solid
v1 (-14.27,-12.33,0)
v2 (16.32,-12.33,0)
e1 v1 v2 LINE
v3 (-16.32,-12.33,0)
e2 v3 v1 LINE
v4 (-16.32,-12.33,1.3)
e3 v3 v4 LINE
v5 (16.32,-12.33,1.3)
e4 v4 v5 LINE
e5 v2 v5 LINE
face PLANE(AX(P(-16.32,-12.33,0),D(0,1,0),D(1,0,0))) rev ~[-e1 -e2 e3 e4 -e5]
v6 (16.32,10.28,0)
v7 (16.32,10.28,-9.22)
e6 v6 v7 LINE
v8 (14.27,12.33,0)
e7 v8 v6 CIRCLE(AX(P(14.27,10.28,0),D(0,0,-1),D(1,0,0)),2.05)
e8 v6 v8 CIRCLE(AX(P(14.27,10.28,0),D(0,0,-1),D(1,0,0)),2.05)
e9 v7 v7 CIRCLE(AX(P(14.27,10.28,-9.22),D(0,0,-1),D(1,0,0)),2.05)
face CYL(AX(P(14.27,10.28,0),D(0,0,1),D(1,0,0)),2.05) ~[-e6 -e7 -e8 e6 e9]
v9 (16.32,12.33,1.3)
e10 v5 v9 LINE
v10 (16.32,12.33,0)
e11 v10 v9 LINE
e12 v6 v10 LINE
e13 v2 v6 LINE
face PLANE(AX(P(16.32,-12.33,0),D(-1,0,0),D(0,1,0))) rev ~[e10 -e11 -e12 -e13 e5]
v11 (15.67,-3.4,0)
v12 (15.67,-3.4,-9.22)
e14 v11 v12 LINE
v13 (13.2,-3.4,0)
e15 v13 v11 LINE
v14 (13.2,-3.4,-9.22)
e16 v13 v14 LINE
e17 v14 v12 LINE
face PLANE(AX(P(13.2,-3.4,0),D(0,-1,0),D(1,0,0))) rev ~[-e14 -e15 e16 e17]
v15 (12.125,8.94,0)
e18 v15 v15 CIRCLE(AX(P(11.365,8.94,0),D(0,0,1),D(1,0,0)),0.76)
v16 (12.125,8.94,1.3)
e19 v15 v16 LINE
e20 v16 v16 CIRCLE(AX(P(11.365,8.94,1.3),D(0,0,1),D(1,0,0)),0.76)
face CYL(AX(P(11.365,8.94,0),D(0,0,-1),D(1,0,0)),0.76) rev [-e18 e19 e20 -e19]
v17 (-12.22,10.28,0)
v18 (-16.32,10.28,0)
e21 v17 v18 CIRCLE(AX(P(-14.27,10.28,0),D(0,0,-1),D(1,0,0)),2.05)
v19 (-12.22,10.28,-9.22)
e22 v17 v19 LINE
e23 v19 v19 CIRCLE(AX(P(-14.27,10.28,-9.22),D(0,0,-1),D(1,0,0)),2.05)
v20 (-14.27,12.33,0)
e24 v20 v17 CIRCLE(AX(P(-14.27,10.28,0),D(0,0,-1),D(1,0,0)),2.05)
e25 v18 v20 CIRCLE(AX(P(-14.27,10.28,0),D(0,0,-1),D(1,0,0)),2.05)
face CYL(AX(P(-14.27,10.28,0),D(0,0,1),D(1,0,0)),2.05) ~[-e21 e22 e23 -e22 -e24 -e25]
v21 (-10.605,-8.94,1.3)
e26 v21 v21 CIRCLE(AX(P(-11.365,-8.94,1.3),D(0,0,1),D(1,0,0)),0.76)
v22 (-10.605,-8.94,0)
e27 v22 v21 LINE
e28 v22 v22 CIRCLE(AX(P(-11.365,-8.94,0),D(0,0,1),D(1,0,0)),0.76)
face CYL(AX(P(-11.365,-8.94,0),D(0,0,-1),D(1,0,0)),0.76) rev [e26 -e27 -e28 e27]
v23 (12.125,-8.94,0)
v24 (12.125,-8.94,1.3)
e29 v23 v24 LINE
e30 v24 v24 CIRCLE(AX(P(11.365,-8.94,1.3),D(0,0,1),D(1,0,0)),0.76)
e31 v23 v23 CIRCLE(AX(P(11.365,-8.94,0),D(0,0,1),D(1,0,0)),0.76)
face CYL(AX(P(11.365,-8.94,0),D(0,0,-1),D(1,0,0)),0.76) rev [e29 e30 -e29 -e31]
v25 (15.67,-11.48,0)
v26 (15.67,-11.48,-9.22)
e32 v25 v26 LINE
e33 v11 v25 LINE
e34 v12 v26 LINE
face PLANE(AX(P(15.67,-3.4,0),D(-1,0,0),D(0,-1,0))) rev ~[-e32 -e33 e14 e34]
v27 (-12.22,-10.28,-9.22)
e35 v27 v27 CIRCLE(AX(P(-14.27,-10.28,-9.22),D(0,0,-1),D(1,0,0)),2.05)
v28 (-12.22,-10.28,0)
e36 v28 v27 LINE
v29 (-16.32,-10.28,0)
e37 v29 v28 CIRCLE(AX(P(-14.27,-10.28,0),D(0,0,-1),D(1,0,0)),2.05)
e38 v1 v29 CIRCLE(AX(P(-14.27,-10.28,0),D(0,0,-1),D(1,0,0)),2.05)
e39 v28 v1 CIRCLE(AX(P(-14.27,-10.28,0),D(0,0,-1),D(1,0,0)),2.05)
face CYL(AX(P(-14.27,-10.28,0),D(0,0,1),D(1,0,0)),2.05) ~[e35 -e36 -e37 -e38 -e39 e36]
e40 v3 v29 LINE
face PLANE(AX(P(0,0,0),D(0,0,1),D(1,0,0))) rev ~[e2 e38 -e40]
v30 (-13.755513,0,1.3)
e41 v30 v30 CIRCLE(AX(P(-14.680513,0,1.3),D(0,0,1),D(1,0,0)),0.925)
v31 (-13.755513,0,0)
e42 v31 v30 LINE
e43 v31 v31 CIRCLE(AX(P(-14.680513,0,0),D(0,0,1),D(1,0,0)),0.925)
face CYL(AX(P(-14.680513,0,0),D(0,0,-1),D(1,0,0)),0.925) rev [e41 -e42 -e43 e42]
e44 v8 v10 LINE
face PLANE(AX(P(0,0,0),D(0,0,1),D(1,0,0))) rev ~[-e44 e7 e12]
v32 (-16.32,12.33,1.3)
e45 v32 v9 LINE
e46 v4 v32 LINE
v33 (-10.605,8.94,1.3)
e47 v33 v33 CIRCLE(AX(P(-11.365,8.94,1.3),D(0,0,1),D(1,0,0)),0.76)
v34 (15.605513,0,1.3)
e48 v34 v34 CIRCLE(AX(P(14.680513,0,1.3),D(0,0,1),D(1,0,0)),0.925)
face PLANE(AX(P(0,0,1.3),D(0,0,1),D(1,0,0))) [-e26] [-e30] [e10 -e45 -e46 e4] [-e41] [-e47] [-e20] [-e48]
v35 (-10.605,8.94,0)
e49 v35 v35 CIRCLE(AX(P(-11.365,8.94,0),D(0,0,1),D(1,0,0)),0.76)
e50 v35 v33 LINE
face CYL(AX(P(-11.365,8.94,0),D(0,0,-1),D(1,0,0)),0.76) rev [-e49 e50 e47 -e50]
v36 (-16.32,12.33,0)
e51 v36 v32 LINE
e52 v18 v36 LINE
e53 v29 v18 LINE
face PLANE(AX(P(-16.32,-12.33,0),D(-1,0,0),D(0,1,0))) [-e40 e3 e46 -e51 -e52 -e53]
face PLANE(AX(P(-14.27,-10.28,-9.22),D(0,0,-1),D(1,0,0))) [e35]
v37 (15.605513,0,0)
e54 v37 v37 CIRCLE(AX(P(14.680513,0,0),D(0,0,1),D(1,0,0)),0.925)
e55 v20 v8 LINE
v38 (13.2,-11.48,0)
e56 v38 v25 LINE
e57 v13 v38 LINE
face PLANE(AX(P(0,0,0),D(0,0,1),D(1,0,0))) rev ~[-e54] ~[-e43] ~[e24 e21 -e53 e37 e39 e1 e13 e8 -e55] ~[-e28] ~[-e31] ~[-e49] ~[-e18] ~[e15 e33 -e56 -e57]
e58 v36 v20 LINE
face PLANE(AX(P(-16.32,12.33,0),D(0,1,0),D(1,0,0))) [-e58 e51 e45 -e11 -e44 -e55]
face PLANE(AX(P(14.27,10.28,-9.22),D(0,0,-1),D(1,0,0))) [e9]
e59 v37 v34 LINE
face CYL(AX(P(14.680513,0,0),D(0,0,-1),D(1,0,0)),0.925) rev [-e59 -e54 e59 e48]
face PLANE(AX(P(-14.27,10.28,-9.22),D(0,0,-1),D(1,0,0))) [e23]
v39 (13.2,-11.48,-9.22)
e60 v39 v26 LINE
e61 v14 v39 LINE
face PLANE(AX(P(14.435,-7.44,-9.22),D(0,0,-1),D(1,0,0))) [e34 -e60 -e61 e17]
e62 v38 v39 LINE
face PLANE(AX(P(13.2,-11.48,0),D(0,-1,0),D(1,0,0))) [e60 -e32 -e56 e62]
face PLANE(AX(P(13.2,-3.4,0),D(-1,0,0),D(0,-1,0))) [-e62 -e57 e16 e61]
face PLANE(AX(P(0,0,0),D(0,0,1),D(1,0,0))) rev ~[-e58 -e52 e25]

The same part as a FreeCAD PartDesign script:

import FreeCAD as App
import Part
import Sketcher

V = App.Vector
Q = App.Units.Quantity


def add_polygon(sketch, points):
    """Adds a closed chain of lines whose ends are joined by coincident constraints."""
    first, n = sketch.GeometryCount, len(points)
    for a, b in zip(points, points[1:] + points[:1]):
        sketch.addGeometry(Part.LineSegment(App.Vector(*a, 0), App.Vector(*b, 0)), False)
    for i in range(n):
        sketch.addConstraint(Sketcher.Constraint("Coincident", first + i, 2, first + (i + 1) % n, 1))

doc = App.newDocument("Part")
body = doc.addObject("PartDesign::Body", "Body")

# Sketch on XY plane
sketch1 = doc.addObject("Sketcher::SketchObject", "Sketch")
body.addObject(sketch1)
sketch1.AttachmentSupport = (doc.XY_Plane, [""])
sketch1.MapMode = "FlatFace"
add_polygon(sketch1, [(-16.3, 12.3), (-16.3, -12.3), (16.3, -12.3), (16.3, 12.3)])  # lines 0-3
sketch1.addGeometry(Part.Circle(V(-11.4, -8.9, 0), V(0, 0, 1), 0.8), False)  # 4
sketch1.addGeometry(Part.Circle(V(11.4, -8.9, 0), V(0, 0, 1), 0.8), False)  # 5
sketch1.addGeometry(Part.Circle(V(-14.7, 0, 0), V(0, 0, 1), 0.9), False)  # 6
sketch1.addGeometry(Part.Circle(V(-11.4, 8.9, 0), V(0, 0, 1), 0.8), False)  # 7
sketch1.addGeometry(Part.Circle(V(14.7, 0, 0), V(0, 0, 1), 0.9), False)  # 8
sketch1.addGeometry(Part.Circle(V(11.4, 8.9, 0), V(0, 0, 1), 0.8), False)  # 9
sketch1.addConstraint(Sketcher.Constraint("Vertical", 0))
sketch1.addConstraint(Sketcher.Constraint("Horizontal", 1))
sketch1.addConstraint(Sketcher.Constraint("Vertical", 2))
sketch1.addConstraint(Sketcher.Constraint("Horizontal", 3))
sketch1.addConstraint(Sketcher.Constraint("Equal", 4, 5))
sketch1.addConstraint(Sketcher.Constraint("Equal", 5, 7))
sketch1.addConstraint(Sketcher.Constraint("Equal", 6, 8))
sketch1.addConstraint(Sketcher.Constraint("Equal", 7, 9))
sketch1.addConstraint(Sketcher.Constraint("Symmetric", 5, 3, 7, 3, -1, 1))
sketch1.addConstraint(Sketcher.Constraint("Symmetric", 6, 3, 8, 3, -1, 1))
sketch1.addConstraint(Sketcher.Constraint("Symmetric", 4, 3, 9, 3, -1, 1))
sketch1.addConstraint(Sketcher.Constraint("Symmetric", 0, 2, 2, 2, -1, 1))
sketch1.addConstraint(Sketcher.Constraint("Symmetric", 4, 3, 5, 3, -2))
sketch1.addConstraint(Sketcher.Constraint("PointOnObject", 6, 3, -1))
sketch1.addConstraint(Sketcher.Constraint("Diameter", 4, Q("1.52 mm")))
sketch1.addConstraint(Sketcher.Constraint("Diameter", 6, Q("1.85 mm")))
sketch1.addConstraint(Sketcher.Constraint("DistanceX", 1, 1, 1, 2, Q("32.64 mm")))
sketch1.addConstraint(Sketcher.Constraint("DistanceY", 0, 2, 0, 1, Q("24.66 mm")))
sketch1.addConstraint(Sketcher.Constraint("DistanceY", 4, 3, -1, 1, Q("8.94 mm")))
sketch1.addConstraint(Sketcher.Constraint("DistanceX", 4, 3, 5, 3, Q("22.73 mm")))
sketch1.addConstraint(Sketcher.Constraint("DistanceX", 6, 3, -1, 1, Q("14.680513 mm")))
pad1 = doc.addObject("PartDesign::Pad", "Pad")
body.addObject(pad1)
pad1.Profile = sketch1
pad1.Length = 1.3

# Sketch on XY plane
sketch2 = doc.addObject("Sketcher::SketchObject", "Sketch001")
body.addObject(sketch2)
sketch2.AttachmentSupport = (doc.XY_Plane, [""])
sketch2.MapMode = "FlatFace"
sketch2.addGeometry(Part.Circle(V(-14.3, -10.3, 0), V(0, 0, 1), 2), False)  # 0
sketch2.addGeometry(Part.Circle(V(-14.3, 10.3, 0), V(0, 0, 1), 2), False)  # 1
sketch2.addGeometry(Part.Circle(V(14.3, 10.3, 0), V(0, 0, 1), 2), False)  # 2
add_polygon(sketch2, [(13.2, -11.5), (13.2, -3.4), (15.7, -3.4), (15.7, -11.5)])  # lines 3-6
sketch2.addConstraint(Sketcher.Constraint("Vertical", 3))
sketch2.addConstraint(Sketcher.Constraint("Horizontal", 4))
sketch2.addConstraint(Sketcher.Constraint("Vertical", 5))
sketch2.addConstraint(Sketcher.Constraint("Horizontal", 6))
sketch2.addConstraint(Sketcher.Constraint("Equal", 0, 1))
sketch2.addConstraint(Sketcher.Constraint("Equal", 1, 2))
sketch2.addConstraint(Sketcher.Constraint("Symmetric", 0, 3, 2, 3, -1, 1))
sketch2.addConstraint(Sketcher.Constraint("Symmetric", 1, 3, 2, 3, -2))
sketch2.addConstraint(Sketcher.Constraint("Diameter", 0, Q("4.1 mm")))
sketch2.addConstraint(Sketcher.Constraint("DistanceX", 4, 1, 4, 2, Q("2.47 mm")))
sketch2.addConstraint(Sketcher.Constraint("DistanceY", 3, 1, 3, 2, Q("8.08 mm")))
sketch2.addConstraint(Sketcher.Constraint("DistanceX", -1, 1, 3, 2, Q("13.2 mm")))
sketch2.addConstraint(Sketcher.Constraint("DistanceY", 3, 2, -1, 1, Q("3.4 mm")))
sketch2.addConstraint(Sketcher.Constraint("DistanceX", 2, 3, 4, 2, Q("1.4 mm")))
sketch2.addConstraint(Sketcher.Constraint("DistanceY", 5, 2, 0, 3, Q("1.2 mm")))
pad2 = doc.addObject("PartDesign::Pad", "Pad001")
body.addObject(pad2)
pad2.Profile = sketch2
pad2.Length = 9.22
pad2.Reversed = True

doc.recompute()
